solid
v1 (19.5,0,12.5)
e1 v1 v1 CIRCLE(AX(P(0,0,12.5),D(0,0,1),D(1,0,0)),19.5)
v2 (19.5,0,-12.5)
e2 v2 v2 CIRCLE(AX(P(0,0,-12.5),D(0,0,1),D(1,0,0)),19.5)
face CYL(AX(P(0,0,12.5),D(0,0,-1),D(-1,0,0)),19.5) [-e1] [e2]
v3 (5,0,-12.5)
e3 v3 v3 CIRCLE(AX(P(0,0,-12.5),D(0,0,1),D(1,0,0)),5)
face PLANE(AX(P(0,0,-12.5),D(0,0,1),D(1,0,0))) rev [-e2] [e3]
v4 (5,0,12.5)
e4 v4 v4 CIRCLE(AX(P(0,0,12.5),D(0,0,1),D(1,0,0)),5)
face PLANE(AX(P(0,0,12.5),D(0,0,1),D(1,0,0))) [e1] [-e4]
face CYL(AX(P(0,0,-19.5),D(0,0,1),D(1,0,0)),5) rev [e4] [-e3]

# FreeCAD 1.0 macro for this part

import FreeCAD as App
import Part
import Sketcher

V = App.Vector

doc = App.newDocument("Part")
body = doc.addObject("PartDesign::Body", "Body")

# Sketch on XY plane
sketch1 = body.newObject("Sketcher::SketchObject", "Sketch")
sketch1.AttachmentSupport = (doc.getObject("XY_Plane"), [""])
sketch1.MapMode = "FlatFace"
sketch1.addGeometry(Part.Circle(V(0, 0, 0), V(0, 0, 1), 19.5), False)
sketch1.addConstraint([
    Sketcher.Constraint("Coincident", 0, 3, -1, 1),
    Sketcher.Constraint("Diameter", 0, 39.0),
])
pad1 = body.newObject("PartDesign::Pad", "Pad")
pad1.Profile = sketch1
pad1.Length = 25
pad1.Midplane = True

# Sketch on XY plane
sketch2 = body.newObject("Sketcher::SketchObject", "Sketch001")
sketch2.AttachmentSupport = (doc.getObject("XY_Plane"), [""])
sketch2.MapMode = "FlatFace"
sketch2.AttachmentOffset = App.Placement(V(0, 0, 12.5), App.Rotation())
sketch2.addGeometry(Part.Circle(V(0, 0, 0), V(0, 0, 1), 5), False)
sketch2.addConstraint([
    Sketcher.Constraint("Coincident", 0, 3, -1, 1),
    Sketcher.Constraint("Diameter", 0, 10.0),
])
pocket1 = body.newObject("PartDesign::Pocket", "Pocket")
pocket1.Profile = sketch2
pocket1.Length = 32

doc.recompute()
